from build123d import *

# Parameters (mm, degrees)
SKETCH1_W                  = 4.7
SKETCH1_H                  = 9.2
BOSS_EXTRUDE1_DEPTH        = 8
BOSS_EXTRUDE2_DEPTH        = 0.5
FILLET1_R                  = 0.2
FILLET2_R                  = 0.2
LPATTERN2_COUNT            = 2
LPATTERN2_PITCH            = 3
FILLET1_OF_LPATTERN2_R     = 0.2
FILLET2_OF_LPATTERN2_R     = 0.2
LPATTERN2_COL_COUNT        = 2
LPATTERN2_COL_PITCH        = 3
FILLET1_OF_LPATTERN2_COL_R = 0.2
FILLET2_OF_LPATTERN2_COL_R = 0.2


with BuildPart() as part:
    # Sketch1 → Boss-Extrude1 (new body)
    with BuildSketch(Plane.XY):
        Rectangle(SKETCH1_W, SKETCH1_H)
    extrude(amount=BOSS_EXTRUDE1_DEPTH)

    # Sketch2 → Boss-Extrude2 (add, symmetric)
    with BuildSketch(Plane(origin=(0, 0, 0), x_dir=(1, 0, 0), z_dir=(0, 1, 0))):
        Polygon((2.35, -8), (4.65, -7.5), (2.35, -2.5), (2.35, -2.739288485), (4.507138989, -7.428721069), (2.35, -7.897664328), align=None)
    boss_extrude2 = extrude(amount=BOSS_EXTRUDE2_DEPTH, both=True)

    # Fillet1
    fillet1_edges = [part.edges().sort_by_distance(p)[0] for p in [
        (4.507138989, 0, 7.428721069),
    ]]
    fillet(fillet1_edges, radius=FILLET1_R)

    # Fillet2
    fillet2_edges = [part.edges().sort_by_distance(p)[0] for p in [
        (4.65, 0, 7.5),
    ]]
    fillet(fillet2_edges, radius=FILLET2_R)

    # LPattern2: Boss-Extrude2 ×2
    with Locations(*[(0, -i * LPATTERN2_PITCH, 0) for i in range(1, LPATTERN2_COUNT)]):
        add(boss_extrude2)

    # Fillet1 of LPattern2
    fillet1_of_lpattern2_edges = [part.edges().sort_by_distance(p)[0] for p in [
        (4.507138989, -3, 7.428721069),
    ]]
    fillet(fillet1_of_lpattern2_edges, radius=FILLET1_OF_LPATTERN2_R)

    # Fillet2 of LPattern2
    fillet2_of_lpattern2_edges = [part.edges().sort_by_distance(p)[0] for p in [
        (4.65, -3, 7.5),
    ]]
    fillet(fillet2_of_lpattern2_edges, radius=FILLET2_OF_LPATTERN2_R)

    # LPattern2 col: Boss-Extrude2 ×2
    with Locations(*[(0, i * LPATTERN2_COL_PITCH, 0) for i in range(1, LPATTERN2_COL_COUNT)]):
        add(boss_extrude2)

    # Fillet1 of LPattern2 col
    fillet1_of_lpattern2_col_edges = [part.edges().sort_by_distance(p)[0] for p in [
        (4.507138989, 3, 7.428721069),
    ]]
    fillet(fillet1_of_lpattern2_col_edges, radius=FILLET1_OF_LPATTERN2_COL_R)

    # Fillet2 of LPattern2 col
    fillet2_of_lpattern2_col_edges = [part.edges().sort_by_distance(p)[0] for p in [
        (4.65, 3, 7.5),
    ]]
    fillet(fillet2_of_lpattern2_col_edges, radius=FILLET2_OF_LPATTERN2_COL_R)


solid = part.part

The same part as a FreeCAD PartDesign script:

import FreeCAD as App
import Part
import Sketcher
Q = App.Units.Quantity


def edges_at(feature, points):
    """Names of the edges that pass closest to the given points."""
    edges = feature.Shape.Edges
    near = lambda p: min(range(len(edges)), key=lambda i: edges[i].distToShape(Part.Vertex(*p))[0])
    return sorted({f"Edge{near(p) + 1}" for p in points})

doc = App.newDocument("Part")
params = doc.addObject("Spreadsheet::Sheet", "Params")
for row, (alias, value) in enumerate([
    ("sketch1_width", "4.7 mm"),
    ("sketch1_height", "9.2 mm"),
    ("pad1_length", "8 mm"),
    ("pad2_length", "1 mm"),
    ("fillet_radius", "0.2 mm"),
    ("fillet2_radius", "0.2 mm"),
    ("linearpattern_pitch", "3 mm"),
    ("fillet3_radius", "0.2 mm"),
    ("fillet4_radius", "0.2 mm"),
    ("linearpattern2_pitch", "3 mm"),
    ("fillet5_radius", "0.2 mm"),
    ("fillet6_radius", "0.2 mm"),
], start=1):
    params.set(f"A{row}", alias)
    params.set(f"B{row}", "=" + value)
    params.setAlias(f"B{row}", alias)

body = doc.addObject("PartDesign::Body", "Body")

sketch1 = doc.addObject("Sketcher::SketchObject", "Sketch")
body.addObject(sketch1)
sketch1.AttachmentSupport = (doc.XY_Plane, [""])
sketch1.MapMode = "FlatFace"
sketch1.addGeometry(Part.LineSegment(App.Vector(-2.4, 4.6, 0), App.Vector(-2.4, -4.6, 0)), False)
sketch1.addGeometry(Part.LineSegment(App.Vector(-2.4, -4.6, 0), App.Vector(2.4, -4.6, 0)), False)
sketch1.addGeometry(Part.LineSegment(App.Vector(2.4, -4.6, 0), App.Vector(2.4, 4.6, 0)), False)
sketch1.addGeometry(Part.LineSegment(App.Vector(2.4, 4.6, 0), App.Vector(-2.4, 4.6, 0)), False)
sketch1.addConstraint(Sketcher.Constraint("Coincident", 0, 2, 1, 1))
sketch1.addConstraint(Sketcher.Constraint("Coincident", 1, 2, 2, 1))
sketch1.addConstraint(Sketcher.Constraint("Coincident", 2, 2, 3, 1))
sketch1.addConstraint(Sketcher.Constraint("Coincident", 3, 2, 0, 1))
sketch1.addConstraint(Sketcher.Constraint("Vertical", 0))
sketch1.addConstraint(Sketcher.Constraint("Horizontal", 1))
sketch1.addConstraint(Sketcher.Constraint("Vertical", 2))
sketch1.addConstraint(Sketcher.Constraint("Horizontal", 3))
sketch1.addConstraint(Sketcher.Constraint("Symmetric", 0, 2, 2, 2, -1, 1))
sketch1.addConstraint(Sketcher.Constraint("DistanceX", 1, 1, 1, 2, Q("4.7 mm")))
sketch1.addConstraint(Sketcher.Constraint("DistanceY", 0, 2, 0, 1, Q("9.2 mm")))
sketch1.setExpression("Constraints[9]", "Params.sketch1_width")
sketch1.setExpression("Constraints[10]", "Params.sketch1_height")
pad1 = doc.addObject("PartDesign::Pad", "Pad")
body.addObject(pad1)
pad1.Profile = sketch1
pad1.setExpression("Length", "Params.pad1_length")

sketch2 = doc.addObject("Sketcher::SketchObject", "Sketch001")
body.addObject(sketch2)
sketch2.AttachmentSupport = (doc.XZ_Plane, [""])
sketch2.MapMode = "FlatFace"
sketch2.addGeometry(Part.LineSegment(App.Vector(2.35, 8, 0), App.Vector(4.65, 7.5, 0)), False)
sketch2.addGeometry(Part.LineSegment(App.Vector(4.65, 7.5, 0), App.Vector(2.35, 2.5, 0)), False)
sketch2.addGeometry(Part.LineSegment(App.Vector(2.35, 2.5, 0), App.Vector(2.35, 2.74, 0)), False)
sketch2.addGeometry(Part.LineSegment(App.Vector(2.35, 2.74, 0), App.Vector(4.51, 7.43, 0)), False)
sketch2.addGeometry(Part.LineSegment(App.Vector(4.51, 7.43, 0), App.Vector(2.35, 7.9, 0)), False)
sketch2.addGeometry(Part.LineSegment(App.Vector(2.35, 7.9, 0), App.Vector(2.35, 8, 0)), False)
sketch2.addConstraint(Sketcher.Constraint("Coincident", 0, 2, 1, 1))
sketch2.addConstraint(Sketcher.Constraint("Coincident", 1, 2, 2, 1))
sketch2.addConstraint(Sketcher.Constraint("Coincident", 2, 2, 3, 1))
sketch2.addConstraint(Sketcher.Constraint("Coincident", 3, 2, 4, 1))
sketch2.addConstraint(Sketcher.Constraint("Coincident", 4, 2, 5, 1))
sketch2.addConstraint(Sketcher.Constraint("Coincident", 5, 2, 0, 1))
sketch2.addConstraint(Sketcher.Constraint("Vertical", 2))
sketch2.addConstraint(Sketcher.Constraint("Vertical", 5))
sketch2.addConstraint(Sketcher.Constraint("Parallel", 1, 3))
sketch2.addConstraint(Sketcher.Constraint("Parallel", 0, 4))
sketch2.addConstraint(Sketcher.Constraint("Vertical", 2, 2, 4, 2))
sketch2.addConstraint(Sketcher.Constraint("DistanceY", -1, 1, 5, 2, Q("8 mm")))
sketch2.addConstraint(Sketcher.Constraint("DistanceY", 1, 2, 0, 2, Q("5 mm")))
sketch2.addConstraint(Sketcher.Constraint("DistanceY", -1, 1, 0, 2, Q("7.5 mm")))
sketch2.addConstraint(Sketcher.Constraint("DistanceX", 1, 2, 0, 2, Q("2.3 mm")))
sketch2.addConstraint(Sketcher.Constraint("DistanceX", -1, 1, 0, 2, Q("4.65 mm")))
sketch2.addConstraint(Sketcher.Constraint("DistanceY", 2, 1, 2, 2, Q("0.239288 mm")))
sketch2.addConstraint(Sketcher.Constraint("DistanceY", 5, 1, 5, 2, Q("0.102336 mm")))
pad2 = doc.addObject("PartDesign::Pad", "Pad001")
body.addObject(pad2)
pad2.Profile = sketch2
pad2.setExpression("Length", "Params.pad2_length")
pad2.Midplane = True
doc.recompute()

fillet = doc.addObject("PartDesign::Fillet", "Fillet")
body.addObject(fillet)
fillet.Base = (pad2, edges_at(pad2, [(4.507, 0, 7.429)]))
fillet.setExpression("Radius", "Params.fillet_radius")
doc.recompute()

fillet2 = doc.addObject("PartDesign::Fillet", "Fillet001")
body.addObject(fillet2)
fillet2.Base = (fillet, edges_at(fillet, [(4.65, 0, 7.5)]))
fillet2.setExpression("Radius", "Params.fillet2_radius")
doc.recompute()

linearpattern = doc.addObject("PartDesign::LinearPattern", "LinearPattern")
body.addObject(linearpattern)
linearpattern.Originals = [pad2]
linearpattern.Direction = (doc.Y_Axis, [""])
linearpattern.Mode = "offset"
linearpattern.setExpression("Offset", "Params.linearpattern_pitch")
linearpattern.Occurrences = 2
linearpattern.Reversed = True
body.Tip = linearpattern
doc.recompute()

fillet3 = doc.addObject("PartDesign::Fillet", "Fillet002")
body.addObject(fillet3)
fillet3.Base = (linearpattern, edges_at(linearpattern, [(4.507, -3, 7.429)]))
fillet3.setExpression("Radius", "Params.fillet3_radius")
doc.recompute()

fillet4 = doc.addObject("PartDesign::Fillet", "Fillet003")
body.addObject(fillet4)
fillet4.Base = (fillet3, edges_at(fillet3, [(4.65, -3, 7.5)]))
fillet4.setExpression("Radius", "Params.fillet4_radius")
doc.recompute()

linearpattern2 = doc.addObject("PartDesign::LinearPattern", "LinearPattern001")
body.addObject(linearpattern2)
linearpattern2.Originals = [pad2]
linearpattern2.Direction = (doc.Y_Axis, [""])
linearpattern2.Mode = "offset"
linearpattern2.setExpression("Offset", "Params.linearpattern2_pitch")
linearpattern2.Occurrences = 2
body.Tip = linearpattern2
doc.recompute()

fillet5 = doc.addObject("PartDesign::Fillet", "Fillet004")
body.addObject(fillet5)
fillet5.Base = (linearpattern2, edges_at(linearpattern2, [(4.507, 3, 7.429)]))
fillet5.setExpression("Radius", "Params.fillet5_radius")
doc.recompute()

fillet6 = doc.addObject("PartDesign::Fillet", "Fillet005")
body.addObject(fillet6)
fillet6.Base = (fillet5, edges_at(fillet5, [(4.65, 3, 7.5)]))
fillet6.setExpression("Radius", "Params.fillet6_radius")

doc.recompute()
